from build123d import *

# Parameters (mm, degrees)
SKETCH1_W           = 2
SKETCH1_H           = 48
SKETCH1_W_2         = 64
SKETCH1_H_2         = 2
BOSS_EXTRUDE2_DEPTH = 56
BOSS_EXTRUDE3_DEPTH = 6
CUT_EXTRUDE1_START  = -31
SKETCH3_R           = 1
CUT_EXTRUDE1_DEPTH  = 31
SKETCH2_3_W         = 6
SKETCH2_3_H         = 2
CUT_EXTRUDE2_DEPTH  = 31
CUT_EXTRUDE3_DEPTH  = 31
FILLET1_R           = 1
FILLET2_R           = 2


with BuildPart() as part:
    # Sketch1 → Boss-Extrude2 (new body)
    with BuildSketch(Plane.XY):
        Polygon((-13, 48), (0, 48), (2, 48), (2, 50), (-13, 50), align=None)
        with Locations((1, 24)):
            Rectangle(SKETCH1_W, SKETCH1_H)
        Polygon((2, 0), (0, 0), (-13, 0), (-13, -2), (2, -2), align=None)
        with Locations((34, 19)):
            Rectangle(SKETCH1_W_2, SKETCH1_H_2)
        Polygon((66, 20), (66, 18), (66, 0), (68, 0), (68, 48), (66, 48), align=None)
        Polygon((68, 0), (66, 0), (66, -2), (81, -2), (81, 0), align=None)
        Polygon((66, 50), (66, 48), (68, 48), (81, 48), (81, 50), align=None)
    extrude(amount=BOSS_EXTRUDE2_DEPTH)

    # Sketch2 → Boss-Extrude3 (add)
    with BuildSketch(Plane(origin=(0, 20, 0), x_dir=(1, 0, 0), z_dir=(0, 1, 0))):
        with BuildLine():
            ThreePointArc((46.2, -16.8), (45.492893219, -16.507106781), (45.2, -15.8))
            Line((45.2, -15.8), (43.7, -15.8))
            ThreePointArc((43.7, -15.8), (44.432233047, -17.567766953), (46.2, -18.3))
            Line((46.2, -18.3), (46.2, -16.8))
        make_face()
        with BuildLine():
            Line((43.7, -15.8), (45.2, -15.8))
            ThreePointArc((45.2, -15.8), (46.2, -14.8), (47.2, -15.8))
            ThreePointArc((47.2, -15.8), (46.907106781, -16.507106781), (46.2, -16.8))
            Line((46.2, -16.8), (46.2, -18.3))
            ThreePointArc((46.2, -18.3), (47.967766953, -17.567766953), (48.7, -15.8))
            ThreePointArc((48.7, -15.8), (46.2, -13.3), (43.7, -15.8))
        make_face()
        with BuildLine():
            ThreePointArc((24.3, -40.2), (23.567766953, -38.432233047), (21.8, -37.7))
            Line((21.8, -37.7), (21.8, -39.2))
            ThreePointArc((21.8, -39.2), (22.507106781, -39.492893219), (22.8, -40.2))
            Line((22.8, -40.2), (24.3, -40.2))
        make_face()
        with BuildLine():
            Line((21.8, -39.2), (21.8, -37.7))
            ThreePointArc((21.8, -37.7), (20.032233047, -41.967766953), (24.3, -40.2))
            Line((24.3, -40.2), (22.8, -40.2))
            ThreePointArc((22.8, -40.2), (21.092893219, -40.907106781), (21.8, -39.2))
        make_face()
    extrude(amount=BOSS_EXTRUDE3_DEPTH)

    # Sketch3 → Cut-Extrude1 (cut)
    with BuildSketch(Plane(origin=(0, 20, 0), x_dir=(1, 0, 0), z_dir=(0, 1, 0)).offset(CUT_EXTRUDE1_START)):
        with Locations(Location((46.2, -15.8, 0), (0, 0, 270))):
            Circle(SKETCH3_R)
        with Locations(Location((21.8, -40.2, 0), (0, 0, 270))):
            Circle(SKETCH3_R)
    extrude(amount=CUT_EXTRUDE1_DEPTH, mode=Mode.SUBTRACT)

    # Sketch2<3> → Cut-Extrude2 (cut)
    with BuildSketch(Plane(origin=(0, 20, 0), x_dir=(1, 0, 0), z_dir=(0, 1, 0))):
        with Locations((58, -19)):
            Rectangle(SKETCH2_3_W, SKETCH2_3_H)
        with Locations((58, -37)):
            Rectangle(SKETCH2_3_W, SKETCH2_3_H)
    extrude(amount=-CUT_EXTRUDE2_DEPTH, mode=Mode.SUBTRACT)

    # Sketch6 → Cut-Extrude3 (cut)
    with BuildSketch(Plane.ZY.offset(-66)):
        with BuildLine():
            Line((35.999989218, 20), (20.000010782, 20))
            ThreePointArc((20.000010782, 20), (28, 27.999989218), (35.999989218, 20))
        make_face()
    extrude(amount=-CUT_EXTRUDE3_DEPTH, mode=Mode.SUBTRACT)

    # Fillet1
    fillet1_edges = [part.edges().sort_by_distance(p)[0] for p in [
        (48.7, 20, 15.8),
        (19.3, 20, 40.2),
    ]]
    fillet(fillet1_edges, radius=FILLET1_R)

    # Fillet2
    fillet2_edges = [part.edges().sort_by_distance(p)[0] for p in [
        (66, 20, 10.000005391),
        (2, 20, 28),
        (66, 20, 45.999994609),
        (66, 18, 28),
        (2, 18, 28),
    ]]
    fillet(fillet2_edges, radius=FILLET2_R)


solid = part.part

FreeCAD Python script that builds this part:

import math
import FreeCAD as App
import Part
import Sketcher
Q = App.Units.Quantity


def edges_at(feature, points):
    """Names of the edges that pass closest to the given points."""
    edges = feature.Shape.Edges
    near = lambda p: min(range(len(edges)), key=lambda i: edges[i].distToShape(Part.Vertex(*p))[0])
    return sorted({f"Edge{near(p) + 1}" for p in points})

doc = App.newDocument("Part")
body = doc.addObject("PartDesign::Body", "Body")

sketch1 = doc.addObject("Sketcher::SketchObject", "Sketch")
body.addObject(sketch1)
sketch1.AttachmentSupport = (doc.XY_Plane, [""])
sketch1.MapMode = "FlatFace"
sketch1.addGeometry(Part.LineSegment(App.Vector(-13, 48, 0), App.Vector(0, 48, 0)), False)
sketch1.addGeometry(Part.LineSegment(App.Vector(0, 48, 0), App.Vector(0, 0, 0)), False)
sketch1.addGeometry(Part.LineSegment(App.Vector(0, 0, 0), App.Vector(-13, 0, 0)), False)
sketch1.addGeometry(Part.LineSegment(App.Vector(-13, 0, 0), App.Vector(-13, -2, 0)), False)
sketch1.addGeometry(Part.LineSegment(App.Vector(-13, -2, 0), App.Vector(2, -2, 0)), False)
sketch1.addGeometry(Part.LineSegment(App.Vector(2, -2, 0), App.Vector(2, 18, 0)), False)
sketch1.addGeometry(Part.LineSegment(App.Vector(2, 18, 0), App.Vector(66, 18, 0)), False)
sketch1.addGeometry(Part.LineSegment(App.Vector(66, 18, 0), App.Vector(66, -2, 0)), False)
sketch1.addGeometry(Part.LineSegment(App.Vector(66, -2, 0), App.Vector(81, -2, 0)), False)
sketch1.addGeometry(Part.LineSegment(App.Vector(81, -2, 0), App.Vector(81, 0, 0)), False)
sketch1.addGeometry(Part.LineSegment(App.Vector(81, 0, 0), App.Vector(68, 0, 0)), False)
sketch1.addGeometry(Part.LineSegment(App.Vector(68, 0, 0), App.Vector(68, 48, 0)), False)
sketch1.addGeometry(Part.LineSegment(App.Vector(68, 48, 0), App.Vector(81, 48, 0)), False)
sketch1.addGeometry(Part.LineSegment(App.Vector(81, 48, 0), App.Vector(81, 50, 0)), False)
sketch1.addGeometry(Part.LineSegment(App.Vector(81, 50, 0), App.Vector(66, 50, 0)), False)
sketch1.addGeometry(Part.LineSegment(App.Vector(66, 50, 0), App.Vector(66, 20, 0)), False)
sketch1.addGeometry(Part.LineSegment(App.Vector(66, 20, 0), App.Vector(2, 20, 0)), False)
sketch1.addGeometry(Part.LineSegment(App.Vector(2, 20, 0), App.Vector(2, 50, 0)), False)
sketch1.addGeometry(Part.LineSegment(App.Vector(2, 50, 0), App.Vector(-13, 50, 0)), False)
sketch1.addGeometry(Part.LineSegment(App.Vector(-13, 50, 0), App.Vector(-13, 48, 0)), False)
sketch1.addConstraint(Sketcher.Constraint("Coincident", 0, 2, 1, 1))
sketch1.addConstraint(Sketcher.Constraint("Coincident", 1, 2, 2, 1))
sketch1.addConstraint(Sketcher.Constraint("Coincident", 2, 2, 3, 1))
sketch1.addConstraint(Sketcher.Constraint("Coincident", 3, 2, 4, 1))
sketch1.addConstraint(Sketcher.Constraint("Coincident", 4, 2, 5, 1))
sketch1.addConstraint(Sketcher.Constraint("Coincident", 5, 2, 6, 1))
sketch1.addConstraint(Sketcher.Constraint("Coincident", 6, 2, 7, 1))
sketch1.addConstraint(Sketcher.Constraint("Coincident", 7, 2, 8, 1))
sketch1.addConstraint(Sketcher.Constraint("Coincident", 8, 2, 9, 1))
sketch1.addConstraint(Sketcher.Constraint("Coincident", 9, 2, 10, 1))
sketch1.addConstraint(Sketcher.Constraint("Coincident", 10, 2, 11, 1))
sketch1.addConstraint(Sketcher.Constraint("Coincident", 11, 2, 12, 1))
sketch1.addConstraint(Sketcher.Constraint("Coincident", 12, 2, 13, 1))
sketch1.addConstraint(Sketcher.Constraint("Coincident", 13, 2, 14, 1))
sketch1.addConstraint(Sketcher.Constraint("Coincident", 14, 2, 15, 1))
sketch1.addConstraint(Sketcher.Constraint("Coincident", 15, 2, 16, 1))
sketch1.addConstraint(Sketcher.Constraint("Coincident", 16, 2, 17, 1))
sketch1.addConstraint(Sketcher.Constraint("Coincident", 17, 2, 18, 1))
sketch1.addConstraint(Sketcher.Constraint("Coincident", 18, 2, 19, 1))
sketch1.addConstraint(Sketcher.Constraint("Coincident", 19, 2, 0, 1))
sketch1.addConstraint(Sketcher.Constraint("Horizontal", 0))
sketch1.addConstraint(Sketcher.Constraint("Vertical", 1))
sketch1.addConstraint(Sketcher.Constraint("Horizontal", 2))
sketch1.addConstraint(Sketcher.Constraint("Vertical", 3))
sketch1.addConstraint(Sketcher.Constraint("Horizontal", 4))
sketch1.addConstraint(Sketcher.Constraint("Vertical", 5))
sketch1.addConstraint(Sketcher.Constraint("Horizontal", 6))
sketch1.addConstraint(Sketcher.Constraint("Vertical", 7))
sketch1.addConstraint(Sketcher.Constraint("Horizontal", 8))
sketch1.addConstraint(Sketcher.Constraint("Vertical", 9))
sketch1.addConstraint(Sketcher.Constraint("Horizontal", 10))
sketch1.addConstraint(Sketcher.Constraint("Vertical", 11))
sketch1.addConstraint(Sketcher.Constraint("Horizontal", 12))
sketch1.addConstraint(Sketcher.Constraint("Vertical", 13))
sketch1.addConstraint(Sketcher.Constraint("Horizontal", 14))
sketch1.addConstraint(Sketcher.Constraint("Vertical", 15))
sketch1.addConstraint(Sketcher.Constraint("Horizontal", 16))
sketch1.addConstraint(Sketcher.Constraint("Vertical", 17))
sketch1.addConstraint(Sketcher.Constraint("Horizontal", 18))
sketch1.addConstraint(Sketcher.Constraint("Vertical", 19))
sketch1.addConstraint(Sketcher.Constraint("Coincident", 1, 2, -1, 1))
sketch1.addConstraint(Sketcher.Constraint("PointOnObject", 9, 2, -1))
sketch1.addConstraint(Sketcher.Constraint("Horizontal", 4, 2, 7, 2))
sketch1.addConstraint(Sketcher.Constraint("Horizontal", 0, 2, 11, 2))
sketch1.addConstraint(Sketcher.Constraint("Horizontal", 14, 2, 17, 2))
sketch1.addConstraint(Sketcher.Constraint("Vertical", 9, 2, 12, 2))
sketch1.addConstraint(Sketcher.Constraint("Vertical", 7, 2, 14, 2))
sketch1.addConstraint(Sketcher.Constraint("Vertical", 5, 2, 16, 2))
sketch1.addConstraint(Sketcher.Constraint("Vertical", 3, 2, 18, 2))
sketch1.addConstraint(Sketcher.Constraint("Equal", 4, 8))
sketch1.addConstraint(Sketcher.Constraint("Equal", 2, 10))
sketch1.addConstraint(Sketcher.Constraint("Equal", 9, 13))
sketch1.addConstraint(Sketcher.Constraint("DistanceX", 0, 1, 0, 2, Q("13 mm")))
sketch1.addConstraint(Sketcher.Constraint("DistanceX", 4, 1, 4, 2, Q("15 mm")))
sketch1.addConstraint(Sketcher.Constraint("DistanceX", 6, 1, 6, 2, Q("64 mm")))
sketch1.addConstraint(Sketcher.Constraint("DistanceY", 1, 2, 1, 1, Q("48 mm")))
sketch1.addConstraint(Sketcher.Constraint("DistanceY", 3, 2, 3, 1, Q("2 mm")))
sketch1.addConstraint(Sketcher.Constraint("DistanceY", 5, 1, 5, 2, Q("20 mm")))
sketch1.addConstraint(Sketcher.Constraint("DistanceY", 15, 2, 15, 1, Q("30 mm")))
pad1 = doc.addObject("PartDesign::Pad", "Pad")
body.addObject(pad1)
pad1.Profile = sketch1
pad1.Length = 56

sketch2 = doc.addObject("Sketcher::SketchObject", "Sketch001")
body.addObject(sketch2)
sketch2.AttachmentSupport = (doc.XZ_Plane, [""])
sketch2.MapMode = "FlatFace"
sketch2.AttachmentOffset = App.Placement(App.Vector(0, 0, -20), App.Rotation())
sketch2.addGeometry(Part.ArcOfCircle(Part.Circle(App.Vector(46.2, 15.8, 0), App.Vector(0, 0, 1), 2.5), math.radians(90), math.radians(180)), False)
sketch2.addGeometry(Part.ArcOfCircle(Part.Circle(App.Vector(46.2, 15.8, 0), App.Vector(0, 0, 1), 2.5), math.radians(0), math.radians(90)), False)
sketch2.addGeometry(Part.ArcOfCircle(Part.Circle(App.Vector(46.2, 15.8, 0), App.Vector(0, 0, 1), 2.5), math.radians(180), math.radians(360)), False)
sketch2.addGeometry(Part.ArcOfCircle(Part.Circle(App.Vector(46.2, 15.8, 0), App.Vector(0, 0, 1), 1), math.radians(90), math.radians(180)), False)
sketch2.addGeometry(Part.ArcOfCircle(Part.Circle(App.Vector(46.2, 15.8, 0), App.Vector(0, 0, 1), 1), math.radians(180), math.radians(360)), False)
sketch2.addGeometry(Part.ArcOfCircle(Part.Circle(App.Vector(46.2, 15.8, 0), App.Vector(0, 0, 1), 1), math.radians(0), math.radians(90)), False)
sketch2.addGeometry(Part.ArcOfCircle(Part.Circle(App.Vector(21.8, 40.2, 0), App.Vector(0, 0, 1), 2.5), math.radians(-90), math.radians(0)), False)
sketch2.addGeometry(Part.ArcOfCircle(Part.Circle(App.Vector(21.8, 40.2, 0), App.Vector(0, 0, 1), 2.5), math.radians(0), math.radians(270)), False)
sketch2.addGeometry(Part.ArcOfCircle(Part.Circle(App.Vector(21.8, 40.2, 0), App.Vector(0, 0, 1), 1), math.radians(-90), math.radians(0)), False)
sketch2.addGeometry(Part.ArcOfCircle(Part.Circle(App.Vector(21.8, 40.2, 0), App.Vector(0, 0, 1), 1), math.radians(0), math.radians(270)), False)
sketch2.addConstraint(Sketcher.Constraint("Tangent", 0, 1, 1, 2))
sketch2.addConstraint(Sketcher.Constraint("Tangent", 1, 1, 2, 2))
sketch2.addConstraint(Sketcher.Constraint("Tangent", 2, 1, 0, 2))
sketch2.addConstraint(Sketcher.Constraint("Tangent", 3, 2, 4, 1))
sketch2.addConstraint(Sketcher.Constraint("Tangent", 4, 2, 5, 1))
sketch2.addConstraint(Sketcher.Constraint("Tangent", 5, 2, 3, 1))
sketch2.addConstraint(Sketcher.Constraint("Tangent", 6, 1, 7, 2))
sketch2.addConstraint(Sketcher.Constraint("Coincident", 7, 1, 6, 2))
sketch2.addConstraint(Sketcher.Constraint("Tangent", 8, 1, 9, 2))
sketch2.addConstraint(Sketcher.Constraint("Coincident", 9, 1, 8, 2))
sketch2.addConstraint(Sketcher.Constraint("Coincident", 3, 3, 0, 3))
sketch2.addConstraint(Sketcher.Constraint("Coincident", 8, 3, 6, 3))
sketch2.addConstraint(Sketcher.Constraint("Equal", 2, 6))
sketch2.addConstraint(Sketcher.Constraint("Equal", 5, 8))
sketch2.addConstraint(Sketcher.Constraint("Horizontal", 5, 3, 1, 1))
sketch2.addConstraint(Sketcher.Constraint("Horizontal", 1, 1, 2, 1))
sketch2.addConstraint(Sketcher.Constraint("Horizontal", 2, 1, 3, 2))
sketch2.addConstraint(Sketcher.Constraint("Horizontal", 3, 2, 4, 2))
sketch2.addConstraint(Sketcher.Constraint("Horizontal", 9, 3, 7, 1))
sketch2.addConstraint(Sketcher.Constraint("Horizontal", 7, 1, 9, 1))
sketch2.addConstraint(Sketcher.Constraint("Vertical", 5, 3, 0, 1))
sketch2.addConstraint(Sketcher.Constraint("Vertical", 0, 1, 5, 2))
sketch2.addConstraint(Sketcher.Constraint("Vertical", 9, 3, 6, 1))
sketch2.addConstraint(Sketcher.Constraint("Vertical", 6, 1, 8, 1))
sketch2.addConstraint(Sketcher.Constraint("Radius", 3, Q("1 mm")))
sketch2.addConstraint(Sketcher.Constraint("Radius", 0, Q("2.5 mm")))
sketch2.addConstraint(Sketcher.Constraint("DistanceX", -1, 1, 0, 3, Q("46.2 mm")))
sketch2.addConstraint(Sketcher.Constraint("DistanceY", -1, 1, 0, 3, Q("15.8 mm")))
sketch2.addConstraint(Sketcher.Constraint("DistanceX", -1, 1, 6, 3, Q("21.8 mm")))
sketch2.addConstraint(Sketcher.Constraint("DistanceY", -1, 1, 6, 3, Q("40.2 mm")))
pad2 = doc.addObject("PartDesign::Pad", "Pad001")
body.addObject(pad2)
pad2.Profile = sketch2
pad2.Length = 6
pad2.Reversed = True

sketch3 = doc.addObject("Sketcher::SketchObject", "Sketch002")
body.addObject(sketch3)
sketch3.AttachmentSupport = (doc.XZ_Plane, [""])
sketch3.MapMode = "FlatFace"
sketch3.AttachmentOffset = App.Placement(App.Vector(0, 0, 11), App.Rotation())
sketch3.addGeometry(Part.Circle(App.Vector(46.2, 15.8, 0), App.Vector(0, 0, 1), 1), False)
sketch3.addGeometry(Part.Circle(App.Vector(21.8, 40.2, 0), App.Vector(0, 0, 1), 1), False)
sketch3.addConstraint(Sketcher.Constraint("Equal", 0, 1))
sketch3.addConstraint(Sketcher.Constraint("Diameter", 0, Q("2 mm")))
sketch3.addConstraint(Sketcher.Constraint("DistanceX", -1, 1, 0, 3, Q("46.2 mm")))
sketch3.addConstraint(Sketcher.Constraint("DistanceY", -1, 1, 0, 3, Q("15.8 mm")))
sketch3.addConstraint(Sketcher.Constraint("DistanceX", -1, 1, 1, 3, Q("21.8 mm")))
sketch3.addConstraint(Sketcher.Constraint("DistanceY", -1, 1, 1, 3, Q("40.2 mm")))
pocket1 = doc.addObject("PartDesign::Pocket", "Pocket")
body.addObject(pocket1)
pocket1.Profile = sketch3
pocket1.Length = 31

sketch4 = doc.addObject("Sketcher::SketchObject", "Sketch003")
body.addObject(sketch4)
sketch4.AttachmentSupport = (doc.XZ_Plane, [""])
sketch4.MapMode = "FlatFace"
sketch4.AttachmentOffset = App.Placement(App.Vector(0, 0, -20), App.Rotation())
sketch4.addGeometry(Part.LineSegment(App.Vector(55, 18, 0), App.Vector(55, 20, 0)), False)
sketch4.addGeometry(Part.LineSegment(App.Vector(55, 20, 0), App.Vector(61, 20, 0)), False)
sketch4.addGeometry(Part.LineSegment(App.Vector(61, 20, 0), App.Vector(61, 18, 0)), False)
sketch4.addGeometry(Part.LineSegment(App.Vector(61, 18, 0), App.Vector(55, 18, 0)), False)
sketch4.addGeometry(Part.LineSegment(App.Vector(55, 36, 0), App.Vector(55, 38, 0)), False)
sketch4.addGeometry(Part.LineSegment(App.Vector(55, 38, 0), App.Vector(61, 38, 0)), False)
sketch4.addGeometry(Part.LineSegment(App.Vector(61, 38, 0), App.Vector(61, 36, 0)), False)
sketch4.addGeometry(Part.LineSegment(App.Vector(61, 36, 0), App.Vector(55, 36, 0)), False)
sketch4.addConstraint(Sketcher.Constraint("Coincident", 0, 2, 1, 1))
sketch4.addConstraint(Sketcher.Constraint("Coincident", 1, 2, 2, 1))
sketch4.addConstraint(Sketcher.Constraint("Coincident", 2, 2, 3, 1))
sketch4.addConstraint(Sketcher.Constraint("Coincident", 3, 2, 0, 1))
sketch4.addConstraint(Sketcher.Constraint("Coincident", 4, 2, 5, 1))
sketch4.addConstraint(Sketcher.Constraint("Coincident", 5, 2, 6, 1))
sketch4.addConstraint(Sketcher.Constraint("Coincident", 6, 2, 7, 1))
sketch4.addConstraint(Sketcher.Constraint("Coincident", 7, 2, 4, 1))
sketch4.addConstraint(Sketcher.Constraint("Vertical", 0))
sketch4.addConstraint(Sketcher.Constraint("Horizontal", 1))
sketch4.addConstraint(Sketcher.Constraint("Vertical", 2))
sketch4.addConstraint(Sketcher.Constraint("Horizontal", 3))
sketch4.addConstraint(Sketcher.Constraint("Vertical", 4))
sketch4.addConstraint(Sketcher.Constraint("Horizontal", 5))
sketch4.addConstraint(Sketcher.Constraint("Vertical", 6))
sketch4.addConstraint(Sketcher.Constraint("Horizontal", 7))
sketch4.addConstraint(Sketcher.Constraint("Vertical", 3, 2, 4, 2))
sketch4.addConstraint(Sketcher.Constraint("Vertical", 2, 2, 5, 2))
sketch4.addConstraint(Sketcher.Constraint("Equal", 2, 4))
sketch4.addConstraint(Sketcher.Constraint("DistanceX", 1, 1, 1, 2, Q("6 mm")))
sketch4.addConstraint(Sketcher.Constraint("DistanceY", 0, 1, 0, 2, Q("2 mm")))
sketch4.addConstraint(Sketcher.Constraint("DistanceX", -1, 1, 0, 2, Q("55 mm")))
sketch4.addConstraint(Sketcher.Constraint("DistanceY", -1, 1, 0, 2, Q("20 mm")))
sketch4.addConstraint(Sketcher.Constraint("DistanceY", -1, 1, 4, 2, Q("38 mm")))
pocket2 = doc.addObject("PartDesign::Pocket", "Pocket001")
body.addObject(pocket2)
pocket2.Profile = sketch4
pocket2.Length = 31
pocket2.Reversed = True

sketch5 = doc.addObject("Sketcher::SketchObject", "Sketch004")
body.addObject(sketch5)
sketch5.AttachmentSupport = (doc.YZ_Plane, [""])
sketch5.MapMode = "FlatFace"
sketch5.AttachmentOffset = App.Placement(App.Vector(0, 0, 66), App.Rotation())
sketch5.addGeometry(Part.LineSegment(App.Vector(20, 20, 0), App.Vector(20, 36, 0)), False)
sketch5.addGeometry(Part.ArcOfCircle(Part.Circle(App.Vector(20, 28, 0), App.Vector(0, 0, 1), 8), math.radians(-90), math.radians(90)), False)
sketch5.addConstraint(Sketcher.Constraint("Coincident", 0, 1, 1, 1))
sketch5.addConstraint(Sketcher.Constraint("Coincident", 1, 2, 0, 2))
sketch5.addConstraint(Sketcher.Constraint("Vertical", 0))
sketch5.addConstraint(Sketcher.Constraint("Vertical", 1, 3, 0, 1))
sketch5.addConstraint(Sketcher.Constraint("DistanceX", -1, 1, 1, 3, Q("20 mm")))
sketch5.addConstraint(Sketcher.Constraint("DistanceY", -1, 1, 1, 3, Q("28 mm")))
sketch5.addConstraint(Sketcher.Constraint("Radius", 1, Q("7.999989 mm")))
pocket3 = doc.addObject("PartDesign::Pocket", "Pocket002")
body.addObject(pocket3)
pocket3.Profile = sketch5
pocket3.Length = 31
pocket3.Reversed = True
doc.recompute()

fillet = doc.addObject("PartDesign::Fillet", "Fillet")
body.addObject(fillet)
fillet.Base = (pocket3, edges_at(pocket3, [(46.2, 20, 13.3), (20.032, 20, 41.968)]))
fillet.Radius = 1
doc.recompute()

fillet2 = doc.addObject("PartDesign::Fillet", "Fillet001")
body.addObject(fillet2)
fillet2.Base = (fillet, edges_at(fillet, [
    (66, 20, 10),
    (2, 20, 28),
    (66, 20, 46),
    (66, 18, 28),
    (2, 18, 28),
]))
fillet2.Radius = 2

doc.recompute()
